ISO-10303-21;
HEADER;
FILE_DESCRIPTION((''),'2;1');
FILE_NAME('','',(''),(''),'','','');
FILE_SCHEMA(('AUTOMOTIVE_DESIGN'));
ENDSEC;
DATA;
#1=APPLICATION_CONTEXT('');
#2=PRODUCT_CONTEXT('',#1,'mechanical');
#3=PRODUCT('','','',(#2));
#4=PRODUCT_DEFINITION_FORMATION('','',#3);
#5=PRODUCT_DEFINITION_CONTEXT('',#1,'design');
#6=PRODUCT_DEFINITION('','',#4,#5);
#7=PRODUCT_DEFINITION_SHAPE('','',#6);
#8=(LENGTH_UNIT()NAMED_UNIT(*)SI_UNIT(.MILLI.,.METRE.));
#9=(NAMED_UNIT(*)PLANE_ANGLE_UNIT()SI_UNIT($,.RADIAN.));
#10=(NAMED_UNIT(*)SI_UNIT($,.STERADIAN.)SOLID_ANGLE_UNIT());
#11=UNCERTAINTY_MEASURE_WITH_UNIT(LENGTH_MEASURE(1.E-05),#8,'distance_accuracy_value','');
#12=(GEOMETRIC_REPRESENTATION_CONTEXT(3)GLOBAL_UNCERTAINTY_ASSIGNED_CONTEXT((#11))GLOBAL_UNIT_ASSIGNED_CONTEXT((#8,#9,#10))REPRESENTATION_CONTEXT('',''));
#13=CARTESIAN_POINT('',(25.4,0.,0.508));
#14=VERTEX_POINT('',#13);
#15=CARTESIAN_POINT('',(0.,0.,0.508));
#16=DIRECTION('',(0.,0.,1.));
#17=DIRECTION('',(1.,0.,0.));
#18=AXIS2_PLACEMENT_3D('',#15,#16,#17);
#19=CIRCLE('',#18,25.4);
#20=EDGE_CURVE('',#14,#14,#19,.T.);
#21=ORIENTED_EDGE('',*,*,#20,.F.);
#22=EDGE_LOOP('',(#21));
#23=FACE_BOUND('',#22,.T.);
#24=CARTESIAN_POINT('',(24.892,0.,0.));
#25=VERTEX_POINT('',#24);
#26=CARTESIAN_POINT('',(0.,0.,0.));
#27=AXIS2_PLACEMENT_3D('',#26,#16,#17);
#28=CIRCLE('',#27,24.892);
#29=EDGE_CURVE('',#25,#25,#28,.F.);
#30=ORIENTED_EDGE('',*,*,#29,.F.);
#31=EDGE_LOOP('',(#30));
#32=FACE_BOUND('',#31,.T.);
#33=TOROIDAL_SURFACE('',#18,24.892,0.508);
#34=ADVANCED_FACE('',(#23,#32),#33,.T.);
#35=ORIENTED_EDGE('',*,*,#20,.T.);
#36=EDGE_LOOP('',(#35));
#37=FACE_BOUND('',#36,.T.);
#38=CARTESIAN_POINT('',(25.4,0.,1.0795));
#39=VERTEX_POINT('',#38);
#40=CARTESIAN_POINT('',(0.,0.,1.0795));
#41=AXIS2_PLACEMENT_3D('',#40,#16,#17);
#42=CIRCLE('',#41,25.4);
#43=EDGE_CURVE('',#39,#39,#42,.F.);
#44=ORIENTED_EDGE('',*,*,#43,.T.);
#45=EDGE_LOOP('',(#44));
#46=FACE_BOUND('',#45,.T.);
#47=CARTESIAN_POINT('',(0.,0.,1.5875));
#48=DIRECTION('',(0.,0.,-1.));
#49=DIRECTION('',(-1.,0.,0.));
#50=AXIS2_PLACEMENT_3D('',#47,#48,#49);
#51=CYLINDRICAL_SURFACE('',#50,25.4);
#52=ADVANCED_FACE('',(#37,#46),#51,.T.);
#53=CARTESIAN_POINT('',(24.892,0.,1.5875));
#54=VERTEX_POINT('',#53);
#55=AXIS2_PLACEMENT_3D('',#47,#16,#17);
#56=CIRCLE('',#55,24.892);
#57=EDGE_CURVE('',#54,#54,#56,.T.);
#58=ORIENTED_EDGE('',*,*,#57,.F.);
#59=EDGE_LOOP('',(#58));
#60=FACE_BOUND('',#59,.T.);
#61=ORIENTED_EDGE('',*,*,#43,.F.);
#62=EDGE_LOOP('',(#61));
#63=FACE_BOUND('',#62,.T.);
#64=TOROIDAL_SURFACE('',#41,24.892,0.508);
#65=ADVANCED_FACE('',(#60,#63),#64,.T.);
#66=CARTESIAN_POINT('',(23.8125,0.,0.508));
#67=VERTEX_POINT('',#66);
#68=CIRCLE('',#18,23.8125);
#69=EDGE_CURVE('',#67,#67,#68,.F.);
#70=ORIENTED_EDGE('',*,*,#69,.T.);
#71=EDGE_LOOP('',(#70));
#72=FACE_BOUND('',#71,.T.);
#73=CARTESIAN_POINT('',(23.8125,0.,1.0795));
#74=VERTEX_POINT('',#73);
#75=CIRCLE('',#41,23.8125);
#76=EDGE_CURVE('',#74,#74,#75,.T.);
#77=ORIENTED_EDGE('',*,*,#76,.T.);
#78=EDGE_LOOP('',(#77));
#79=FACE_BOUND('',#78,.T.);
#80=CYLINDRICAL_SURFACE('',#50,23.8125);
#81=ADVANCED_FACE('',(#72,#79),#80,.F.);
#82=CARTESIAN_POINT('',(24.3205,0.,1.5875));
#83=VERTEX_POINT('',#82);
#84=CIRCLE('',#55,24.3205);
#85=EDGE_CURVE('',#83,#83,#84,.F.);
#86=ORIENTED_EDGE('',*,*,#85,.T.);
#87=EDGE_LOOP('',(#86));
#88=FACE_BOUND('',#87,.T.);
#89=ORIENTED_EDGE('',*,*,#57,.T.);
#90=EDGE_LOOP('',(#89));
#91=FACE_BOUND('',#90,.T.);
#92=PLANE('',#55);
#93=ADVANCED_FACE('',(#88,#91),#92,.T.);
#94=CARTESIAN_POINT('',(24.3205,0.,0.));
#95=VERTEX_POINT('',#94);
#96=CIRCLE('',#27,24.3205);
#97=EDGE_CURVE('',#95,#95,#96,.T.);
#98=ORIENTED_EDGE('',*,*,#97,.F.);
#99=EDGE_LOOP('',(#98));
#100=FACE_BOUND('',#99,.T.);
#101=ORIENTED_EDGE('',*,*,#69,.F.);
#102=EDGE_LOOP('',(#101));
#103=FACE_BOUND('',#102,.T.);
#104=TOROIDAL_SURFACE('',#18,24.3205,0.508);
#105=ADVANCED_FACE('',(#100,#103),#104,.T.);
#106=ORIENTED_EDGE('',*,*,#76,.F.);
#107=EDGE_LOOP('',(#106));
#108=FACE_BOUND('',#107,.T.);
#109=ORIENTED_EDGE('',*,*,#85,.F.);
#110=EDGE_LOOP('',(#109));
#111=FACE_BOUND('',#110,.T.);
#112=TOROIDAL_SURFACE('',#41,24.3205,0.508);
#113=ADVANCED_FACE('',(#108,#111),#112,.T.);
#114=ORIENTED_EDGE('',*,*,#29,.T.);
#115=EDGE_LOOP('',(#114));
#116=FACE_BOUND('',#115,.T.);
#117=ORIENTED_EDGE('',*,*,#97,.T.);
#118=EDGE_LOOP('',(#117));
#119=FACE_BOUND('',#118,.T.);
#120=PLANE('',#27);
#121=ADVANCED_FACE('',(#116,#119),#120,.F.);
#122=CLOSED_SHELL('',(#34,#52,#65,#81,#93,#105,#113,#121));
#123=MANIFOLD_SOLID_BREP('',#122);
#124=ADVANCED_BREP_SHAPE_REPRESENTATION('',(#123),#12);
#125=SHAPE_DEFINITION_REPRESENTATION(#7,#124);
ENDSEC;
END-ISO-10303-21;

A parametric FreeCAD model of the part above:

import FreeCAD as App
import Part
import Sketcher
from FreeCAD import Vector
Q = App.Units.Quantity


def edges_at(feature, points):
    """Names of the edges that pass closest to the given points."""
    edges = feature.Shape.Edges
    near = lambda p: min(range(len(edges)), key=lambda i: edges[i].distToShape(Part.Vertex(*p))[0])
    return sorted({f"Edge{near(p) + 1}" for p in points})

doc = App.newDocument("Part")
params = doc.addObject("Spreadsheet::Sheet", "Params")
for row, (alias, value) in enumerate([
    ("sketch1_diameter", "2 in"),
    ("sketch1_diameter2", "1.875 in"),
    ("pad1_length", "0.0625 in"),
    ("fillet_radius", "0.02 in"),
], start=1):
    params.set(f"A{row}", alias)
    params.set(f"B{row}", "=" + value)
    params.setAlias(f"B{row}", alias)

body = doc.addObject("PartDesign::Body", "Body")

# Sketch on XY plane
sketch1 = body.newObject("Sketcher::SketchObject", "Sketch")
sketch1.AttachmentSupport = (doc.getObject("XY_Plane"), [""])
sketch1.MapMode = "FlatFace"
sketch1.addGeometry([
    Part.Circle(Vector(0, 0, 0), Vector(0, 0, 1), 25),
    Part.Circle(Vector(0, 0, 0), Vector(0, 0, 1), 24),
], False)
sketch1.addConstraint([
    Sketcher.Constraint("Coincident", 0, 3, -1, 1),
    Sketcher.Constraint("Coincident", 1, 3, -1, 1),
    Sketcher.Constraint("Diameter", 0, Q("2 in")),
    Sketcher.Constraint("Diameter", 1, Q("1.875 in")),
])
sketch1.setExpression("Constraints[2]", "Params.sketch1_diameter")
sketch1.setExpression("Constraints[3]", "Params.sketch1_diameter2")
pad1 = body.newObject("PartDesign::Pad", "Pad")
pad1.Profile = sketch1
pad1.setExpression("Length", "Params.pad1_length")
doc.recompute()

fillet = body.newObject("PartDesign::Fillet", "Fillet")
fillet.Base = (pad1, edges_at(pad1, [
    (-25.4, 0, 0),
    (-25.4, 0, 1.587),
    (-23.812, 0, 0),
    (-23.812, 0, 1.587),
]))
fillet.setExpression("Radius", "Params.fillet_radius")

doc.recompute()
